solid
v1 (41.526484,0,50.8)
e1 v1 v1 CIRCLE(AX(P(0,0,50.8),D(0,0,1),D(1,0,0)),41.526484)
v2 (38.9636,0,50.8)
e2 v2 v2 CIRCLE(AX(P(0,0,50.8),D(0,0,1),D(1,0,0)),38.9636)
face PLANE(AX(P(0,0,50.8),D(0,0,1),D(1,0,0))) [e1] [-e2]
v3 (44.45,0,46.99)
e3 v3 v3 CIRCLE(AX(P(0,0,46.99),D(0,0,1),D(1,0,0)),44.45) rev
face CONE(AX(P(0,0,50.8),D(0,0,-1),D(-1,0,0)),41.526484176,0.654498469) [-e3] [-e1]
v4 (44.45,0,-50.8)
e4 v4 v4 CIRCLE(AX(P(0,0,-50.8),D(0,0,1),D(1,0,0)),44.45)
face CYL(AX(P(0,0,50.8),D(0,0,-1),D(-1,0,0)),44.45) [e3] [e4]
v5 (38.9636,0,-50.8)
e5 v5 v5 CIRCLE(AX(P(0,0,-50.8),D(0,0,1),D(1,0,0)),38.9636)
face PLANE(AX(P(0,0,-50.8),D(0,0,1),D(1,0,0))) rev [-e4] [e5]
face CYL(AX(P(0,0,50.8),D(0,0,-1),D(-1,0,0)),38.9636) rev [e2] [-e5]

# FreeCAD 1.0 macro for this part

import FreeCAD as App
import Part
import Sketcher

V = App.Vector
Q = App.Units.Quantity


def edges_at(feature, points):
    """Names of the edges that pass closest to the given points."""
    edges = feature.Shape.Edges
    near = lambda p: min(range(len(edges)), key=lambda i: edges[i].distToShape(Part.Vertex(*p))[0])
    return sorted({f"Edge{near(p) + 1}" for p in points})

doc = App.newDocument("Part")
params = doc.addObject("Spreadsheet::Sheet", "Params")
for row, (alias, value) in enumerate([
    ("sketch1_diameter", "3.5 in"),
    ("sketch1_diameter2", "3.068 in"),
    ("pad1_length", "4 in"),
    ("chamfer_size", "0.15 in"),
    ("chamfer_size2", "2.923516 mm"),
], start=1):
    params.set(f"A{row}", alias)
    params.set(f"B{row}", "=" + value)
    params.setAlias(f"B{row}", alias)

body = doc.addObject("PartDesign::Body", "Body")

# Sketch on XY plane
sketch1 = body.newObject("Sketcher::SketchObject", "Sketch")
sketch1.AttachmentSupport = (doc.getObject("XY_Plane"), [""])
sketch1.MapMode = "FlatFace"
sketch1.addGeometry([
    Part.Circle(V(0, 0, 0), V(0, 0, 1), 44.45),
    Part.Circle(V(0, 0, 0), V(0, 0, 1), 38.9636),
], False)
sketch1.addConstraint([
    Sketcher.Constraint("Coincident", 0, 3, -1, 1),
    Sketcher.Constraint("Coincident", 1, 3, -1, 1),
    Sketcher.Constraint("Diameter", 0, Q("3.5 in")),
    Sketcher.Constraint("Diameter", 1, Q("3.068 in")),
])
sketch1.setExpression("Constraints[2]", "Params.sketch1_diameter")
sketch1.setExpression("Constraints[3]", "Params.sketch1_diameter2")
pad1 = body.newObject("PartDesign::Pad", "Pad")
pad1.Profile = sketch1
pad1.setExpression("Length", "Params.pad1_length")
pad1.Midplane = True
doc.recompute()

chamfer = body.newObject("PartDesign::Chamfer", "Chamfer")
chamfer.Base = (pad1, edges_at(pad1, [(-44.45, 0, 50.8)]))
chamfer.ChamferType = "Two distances"
chamfer.setExpression("Size", "Params.chamfer_size")
chamfer.setExpression("Size2", "Params.chamfer_size2")

doc.recompute()
